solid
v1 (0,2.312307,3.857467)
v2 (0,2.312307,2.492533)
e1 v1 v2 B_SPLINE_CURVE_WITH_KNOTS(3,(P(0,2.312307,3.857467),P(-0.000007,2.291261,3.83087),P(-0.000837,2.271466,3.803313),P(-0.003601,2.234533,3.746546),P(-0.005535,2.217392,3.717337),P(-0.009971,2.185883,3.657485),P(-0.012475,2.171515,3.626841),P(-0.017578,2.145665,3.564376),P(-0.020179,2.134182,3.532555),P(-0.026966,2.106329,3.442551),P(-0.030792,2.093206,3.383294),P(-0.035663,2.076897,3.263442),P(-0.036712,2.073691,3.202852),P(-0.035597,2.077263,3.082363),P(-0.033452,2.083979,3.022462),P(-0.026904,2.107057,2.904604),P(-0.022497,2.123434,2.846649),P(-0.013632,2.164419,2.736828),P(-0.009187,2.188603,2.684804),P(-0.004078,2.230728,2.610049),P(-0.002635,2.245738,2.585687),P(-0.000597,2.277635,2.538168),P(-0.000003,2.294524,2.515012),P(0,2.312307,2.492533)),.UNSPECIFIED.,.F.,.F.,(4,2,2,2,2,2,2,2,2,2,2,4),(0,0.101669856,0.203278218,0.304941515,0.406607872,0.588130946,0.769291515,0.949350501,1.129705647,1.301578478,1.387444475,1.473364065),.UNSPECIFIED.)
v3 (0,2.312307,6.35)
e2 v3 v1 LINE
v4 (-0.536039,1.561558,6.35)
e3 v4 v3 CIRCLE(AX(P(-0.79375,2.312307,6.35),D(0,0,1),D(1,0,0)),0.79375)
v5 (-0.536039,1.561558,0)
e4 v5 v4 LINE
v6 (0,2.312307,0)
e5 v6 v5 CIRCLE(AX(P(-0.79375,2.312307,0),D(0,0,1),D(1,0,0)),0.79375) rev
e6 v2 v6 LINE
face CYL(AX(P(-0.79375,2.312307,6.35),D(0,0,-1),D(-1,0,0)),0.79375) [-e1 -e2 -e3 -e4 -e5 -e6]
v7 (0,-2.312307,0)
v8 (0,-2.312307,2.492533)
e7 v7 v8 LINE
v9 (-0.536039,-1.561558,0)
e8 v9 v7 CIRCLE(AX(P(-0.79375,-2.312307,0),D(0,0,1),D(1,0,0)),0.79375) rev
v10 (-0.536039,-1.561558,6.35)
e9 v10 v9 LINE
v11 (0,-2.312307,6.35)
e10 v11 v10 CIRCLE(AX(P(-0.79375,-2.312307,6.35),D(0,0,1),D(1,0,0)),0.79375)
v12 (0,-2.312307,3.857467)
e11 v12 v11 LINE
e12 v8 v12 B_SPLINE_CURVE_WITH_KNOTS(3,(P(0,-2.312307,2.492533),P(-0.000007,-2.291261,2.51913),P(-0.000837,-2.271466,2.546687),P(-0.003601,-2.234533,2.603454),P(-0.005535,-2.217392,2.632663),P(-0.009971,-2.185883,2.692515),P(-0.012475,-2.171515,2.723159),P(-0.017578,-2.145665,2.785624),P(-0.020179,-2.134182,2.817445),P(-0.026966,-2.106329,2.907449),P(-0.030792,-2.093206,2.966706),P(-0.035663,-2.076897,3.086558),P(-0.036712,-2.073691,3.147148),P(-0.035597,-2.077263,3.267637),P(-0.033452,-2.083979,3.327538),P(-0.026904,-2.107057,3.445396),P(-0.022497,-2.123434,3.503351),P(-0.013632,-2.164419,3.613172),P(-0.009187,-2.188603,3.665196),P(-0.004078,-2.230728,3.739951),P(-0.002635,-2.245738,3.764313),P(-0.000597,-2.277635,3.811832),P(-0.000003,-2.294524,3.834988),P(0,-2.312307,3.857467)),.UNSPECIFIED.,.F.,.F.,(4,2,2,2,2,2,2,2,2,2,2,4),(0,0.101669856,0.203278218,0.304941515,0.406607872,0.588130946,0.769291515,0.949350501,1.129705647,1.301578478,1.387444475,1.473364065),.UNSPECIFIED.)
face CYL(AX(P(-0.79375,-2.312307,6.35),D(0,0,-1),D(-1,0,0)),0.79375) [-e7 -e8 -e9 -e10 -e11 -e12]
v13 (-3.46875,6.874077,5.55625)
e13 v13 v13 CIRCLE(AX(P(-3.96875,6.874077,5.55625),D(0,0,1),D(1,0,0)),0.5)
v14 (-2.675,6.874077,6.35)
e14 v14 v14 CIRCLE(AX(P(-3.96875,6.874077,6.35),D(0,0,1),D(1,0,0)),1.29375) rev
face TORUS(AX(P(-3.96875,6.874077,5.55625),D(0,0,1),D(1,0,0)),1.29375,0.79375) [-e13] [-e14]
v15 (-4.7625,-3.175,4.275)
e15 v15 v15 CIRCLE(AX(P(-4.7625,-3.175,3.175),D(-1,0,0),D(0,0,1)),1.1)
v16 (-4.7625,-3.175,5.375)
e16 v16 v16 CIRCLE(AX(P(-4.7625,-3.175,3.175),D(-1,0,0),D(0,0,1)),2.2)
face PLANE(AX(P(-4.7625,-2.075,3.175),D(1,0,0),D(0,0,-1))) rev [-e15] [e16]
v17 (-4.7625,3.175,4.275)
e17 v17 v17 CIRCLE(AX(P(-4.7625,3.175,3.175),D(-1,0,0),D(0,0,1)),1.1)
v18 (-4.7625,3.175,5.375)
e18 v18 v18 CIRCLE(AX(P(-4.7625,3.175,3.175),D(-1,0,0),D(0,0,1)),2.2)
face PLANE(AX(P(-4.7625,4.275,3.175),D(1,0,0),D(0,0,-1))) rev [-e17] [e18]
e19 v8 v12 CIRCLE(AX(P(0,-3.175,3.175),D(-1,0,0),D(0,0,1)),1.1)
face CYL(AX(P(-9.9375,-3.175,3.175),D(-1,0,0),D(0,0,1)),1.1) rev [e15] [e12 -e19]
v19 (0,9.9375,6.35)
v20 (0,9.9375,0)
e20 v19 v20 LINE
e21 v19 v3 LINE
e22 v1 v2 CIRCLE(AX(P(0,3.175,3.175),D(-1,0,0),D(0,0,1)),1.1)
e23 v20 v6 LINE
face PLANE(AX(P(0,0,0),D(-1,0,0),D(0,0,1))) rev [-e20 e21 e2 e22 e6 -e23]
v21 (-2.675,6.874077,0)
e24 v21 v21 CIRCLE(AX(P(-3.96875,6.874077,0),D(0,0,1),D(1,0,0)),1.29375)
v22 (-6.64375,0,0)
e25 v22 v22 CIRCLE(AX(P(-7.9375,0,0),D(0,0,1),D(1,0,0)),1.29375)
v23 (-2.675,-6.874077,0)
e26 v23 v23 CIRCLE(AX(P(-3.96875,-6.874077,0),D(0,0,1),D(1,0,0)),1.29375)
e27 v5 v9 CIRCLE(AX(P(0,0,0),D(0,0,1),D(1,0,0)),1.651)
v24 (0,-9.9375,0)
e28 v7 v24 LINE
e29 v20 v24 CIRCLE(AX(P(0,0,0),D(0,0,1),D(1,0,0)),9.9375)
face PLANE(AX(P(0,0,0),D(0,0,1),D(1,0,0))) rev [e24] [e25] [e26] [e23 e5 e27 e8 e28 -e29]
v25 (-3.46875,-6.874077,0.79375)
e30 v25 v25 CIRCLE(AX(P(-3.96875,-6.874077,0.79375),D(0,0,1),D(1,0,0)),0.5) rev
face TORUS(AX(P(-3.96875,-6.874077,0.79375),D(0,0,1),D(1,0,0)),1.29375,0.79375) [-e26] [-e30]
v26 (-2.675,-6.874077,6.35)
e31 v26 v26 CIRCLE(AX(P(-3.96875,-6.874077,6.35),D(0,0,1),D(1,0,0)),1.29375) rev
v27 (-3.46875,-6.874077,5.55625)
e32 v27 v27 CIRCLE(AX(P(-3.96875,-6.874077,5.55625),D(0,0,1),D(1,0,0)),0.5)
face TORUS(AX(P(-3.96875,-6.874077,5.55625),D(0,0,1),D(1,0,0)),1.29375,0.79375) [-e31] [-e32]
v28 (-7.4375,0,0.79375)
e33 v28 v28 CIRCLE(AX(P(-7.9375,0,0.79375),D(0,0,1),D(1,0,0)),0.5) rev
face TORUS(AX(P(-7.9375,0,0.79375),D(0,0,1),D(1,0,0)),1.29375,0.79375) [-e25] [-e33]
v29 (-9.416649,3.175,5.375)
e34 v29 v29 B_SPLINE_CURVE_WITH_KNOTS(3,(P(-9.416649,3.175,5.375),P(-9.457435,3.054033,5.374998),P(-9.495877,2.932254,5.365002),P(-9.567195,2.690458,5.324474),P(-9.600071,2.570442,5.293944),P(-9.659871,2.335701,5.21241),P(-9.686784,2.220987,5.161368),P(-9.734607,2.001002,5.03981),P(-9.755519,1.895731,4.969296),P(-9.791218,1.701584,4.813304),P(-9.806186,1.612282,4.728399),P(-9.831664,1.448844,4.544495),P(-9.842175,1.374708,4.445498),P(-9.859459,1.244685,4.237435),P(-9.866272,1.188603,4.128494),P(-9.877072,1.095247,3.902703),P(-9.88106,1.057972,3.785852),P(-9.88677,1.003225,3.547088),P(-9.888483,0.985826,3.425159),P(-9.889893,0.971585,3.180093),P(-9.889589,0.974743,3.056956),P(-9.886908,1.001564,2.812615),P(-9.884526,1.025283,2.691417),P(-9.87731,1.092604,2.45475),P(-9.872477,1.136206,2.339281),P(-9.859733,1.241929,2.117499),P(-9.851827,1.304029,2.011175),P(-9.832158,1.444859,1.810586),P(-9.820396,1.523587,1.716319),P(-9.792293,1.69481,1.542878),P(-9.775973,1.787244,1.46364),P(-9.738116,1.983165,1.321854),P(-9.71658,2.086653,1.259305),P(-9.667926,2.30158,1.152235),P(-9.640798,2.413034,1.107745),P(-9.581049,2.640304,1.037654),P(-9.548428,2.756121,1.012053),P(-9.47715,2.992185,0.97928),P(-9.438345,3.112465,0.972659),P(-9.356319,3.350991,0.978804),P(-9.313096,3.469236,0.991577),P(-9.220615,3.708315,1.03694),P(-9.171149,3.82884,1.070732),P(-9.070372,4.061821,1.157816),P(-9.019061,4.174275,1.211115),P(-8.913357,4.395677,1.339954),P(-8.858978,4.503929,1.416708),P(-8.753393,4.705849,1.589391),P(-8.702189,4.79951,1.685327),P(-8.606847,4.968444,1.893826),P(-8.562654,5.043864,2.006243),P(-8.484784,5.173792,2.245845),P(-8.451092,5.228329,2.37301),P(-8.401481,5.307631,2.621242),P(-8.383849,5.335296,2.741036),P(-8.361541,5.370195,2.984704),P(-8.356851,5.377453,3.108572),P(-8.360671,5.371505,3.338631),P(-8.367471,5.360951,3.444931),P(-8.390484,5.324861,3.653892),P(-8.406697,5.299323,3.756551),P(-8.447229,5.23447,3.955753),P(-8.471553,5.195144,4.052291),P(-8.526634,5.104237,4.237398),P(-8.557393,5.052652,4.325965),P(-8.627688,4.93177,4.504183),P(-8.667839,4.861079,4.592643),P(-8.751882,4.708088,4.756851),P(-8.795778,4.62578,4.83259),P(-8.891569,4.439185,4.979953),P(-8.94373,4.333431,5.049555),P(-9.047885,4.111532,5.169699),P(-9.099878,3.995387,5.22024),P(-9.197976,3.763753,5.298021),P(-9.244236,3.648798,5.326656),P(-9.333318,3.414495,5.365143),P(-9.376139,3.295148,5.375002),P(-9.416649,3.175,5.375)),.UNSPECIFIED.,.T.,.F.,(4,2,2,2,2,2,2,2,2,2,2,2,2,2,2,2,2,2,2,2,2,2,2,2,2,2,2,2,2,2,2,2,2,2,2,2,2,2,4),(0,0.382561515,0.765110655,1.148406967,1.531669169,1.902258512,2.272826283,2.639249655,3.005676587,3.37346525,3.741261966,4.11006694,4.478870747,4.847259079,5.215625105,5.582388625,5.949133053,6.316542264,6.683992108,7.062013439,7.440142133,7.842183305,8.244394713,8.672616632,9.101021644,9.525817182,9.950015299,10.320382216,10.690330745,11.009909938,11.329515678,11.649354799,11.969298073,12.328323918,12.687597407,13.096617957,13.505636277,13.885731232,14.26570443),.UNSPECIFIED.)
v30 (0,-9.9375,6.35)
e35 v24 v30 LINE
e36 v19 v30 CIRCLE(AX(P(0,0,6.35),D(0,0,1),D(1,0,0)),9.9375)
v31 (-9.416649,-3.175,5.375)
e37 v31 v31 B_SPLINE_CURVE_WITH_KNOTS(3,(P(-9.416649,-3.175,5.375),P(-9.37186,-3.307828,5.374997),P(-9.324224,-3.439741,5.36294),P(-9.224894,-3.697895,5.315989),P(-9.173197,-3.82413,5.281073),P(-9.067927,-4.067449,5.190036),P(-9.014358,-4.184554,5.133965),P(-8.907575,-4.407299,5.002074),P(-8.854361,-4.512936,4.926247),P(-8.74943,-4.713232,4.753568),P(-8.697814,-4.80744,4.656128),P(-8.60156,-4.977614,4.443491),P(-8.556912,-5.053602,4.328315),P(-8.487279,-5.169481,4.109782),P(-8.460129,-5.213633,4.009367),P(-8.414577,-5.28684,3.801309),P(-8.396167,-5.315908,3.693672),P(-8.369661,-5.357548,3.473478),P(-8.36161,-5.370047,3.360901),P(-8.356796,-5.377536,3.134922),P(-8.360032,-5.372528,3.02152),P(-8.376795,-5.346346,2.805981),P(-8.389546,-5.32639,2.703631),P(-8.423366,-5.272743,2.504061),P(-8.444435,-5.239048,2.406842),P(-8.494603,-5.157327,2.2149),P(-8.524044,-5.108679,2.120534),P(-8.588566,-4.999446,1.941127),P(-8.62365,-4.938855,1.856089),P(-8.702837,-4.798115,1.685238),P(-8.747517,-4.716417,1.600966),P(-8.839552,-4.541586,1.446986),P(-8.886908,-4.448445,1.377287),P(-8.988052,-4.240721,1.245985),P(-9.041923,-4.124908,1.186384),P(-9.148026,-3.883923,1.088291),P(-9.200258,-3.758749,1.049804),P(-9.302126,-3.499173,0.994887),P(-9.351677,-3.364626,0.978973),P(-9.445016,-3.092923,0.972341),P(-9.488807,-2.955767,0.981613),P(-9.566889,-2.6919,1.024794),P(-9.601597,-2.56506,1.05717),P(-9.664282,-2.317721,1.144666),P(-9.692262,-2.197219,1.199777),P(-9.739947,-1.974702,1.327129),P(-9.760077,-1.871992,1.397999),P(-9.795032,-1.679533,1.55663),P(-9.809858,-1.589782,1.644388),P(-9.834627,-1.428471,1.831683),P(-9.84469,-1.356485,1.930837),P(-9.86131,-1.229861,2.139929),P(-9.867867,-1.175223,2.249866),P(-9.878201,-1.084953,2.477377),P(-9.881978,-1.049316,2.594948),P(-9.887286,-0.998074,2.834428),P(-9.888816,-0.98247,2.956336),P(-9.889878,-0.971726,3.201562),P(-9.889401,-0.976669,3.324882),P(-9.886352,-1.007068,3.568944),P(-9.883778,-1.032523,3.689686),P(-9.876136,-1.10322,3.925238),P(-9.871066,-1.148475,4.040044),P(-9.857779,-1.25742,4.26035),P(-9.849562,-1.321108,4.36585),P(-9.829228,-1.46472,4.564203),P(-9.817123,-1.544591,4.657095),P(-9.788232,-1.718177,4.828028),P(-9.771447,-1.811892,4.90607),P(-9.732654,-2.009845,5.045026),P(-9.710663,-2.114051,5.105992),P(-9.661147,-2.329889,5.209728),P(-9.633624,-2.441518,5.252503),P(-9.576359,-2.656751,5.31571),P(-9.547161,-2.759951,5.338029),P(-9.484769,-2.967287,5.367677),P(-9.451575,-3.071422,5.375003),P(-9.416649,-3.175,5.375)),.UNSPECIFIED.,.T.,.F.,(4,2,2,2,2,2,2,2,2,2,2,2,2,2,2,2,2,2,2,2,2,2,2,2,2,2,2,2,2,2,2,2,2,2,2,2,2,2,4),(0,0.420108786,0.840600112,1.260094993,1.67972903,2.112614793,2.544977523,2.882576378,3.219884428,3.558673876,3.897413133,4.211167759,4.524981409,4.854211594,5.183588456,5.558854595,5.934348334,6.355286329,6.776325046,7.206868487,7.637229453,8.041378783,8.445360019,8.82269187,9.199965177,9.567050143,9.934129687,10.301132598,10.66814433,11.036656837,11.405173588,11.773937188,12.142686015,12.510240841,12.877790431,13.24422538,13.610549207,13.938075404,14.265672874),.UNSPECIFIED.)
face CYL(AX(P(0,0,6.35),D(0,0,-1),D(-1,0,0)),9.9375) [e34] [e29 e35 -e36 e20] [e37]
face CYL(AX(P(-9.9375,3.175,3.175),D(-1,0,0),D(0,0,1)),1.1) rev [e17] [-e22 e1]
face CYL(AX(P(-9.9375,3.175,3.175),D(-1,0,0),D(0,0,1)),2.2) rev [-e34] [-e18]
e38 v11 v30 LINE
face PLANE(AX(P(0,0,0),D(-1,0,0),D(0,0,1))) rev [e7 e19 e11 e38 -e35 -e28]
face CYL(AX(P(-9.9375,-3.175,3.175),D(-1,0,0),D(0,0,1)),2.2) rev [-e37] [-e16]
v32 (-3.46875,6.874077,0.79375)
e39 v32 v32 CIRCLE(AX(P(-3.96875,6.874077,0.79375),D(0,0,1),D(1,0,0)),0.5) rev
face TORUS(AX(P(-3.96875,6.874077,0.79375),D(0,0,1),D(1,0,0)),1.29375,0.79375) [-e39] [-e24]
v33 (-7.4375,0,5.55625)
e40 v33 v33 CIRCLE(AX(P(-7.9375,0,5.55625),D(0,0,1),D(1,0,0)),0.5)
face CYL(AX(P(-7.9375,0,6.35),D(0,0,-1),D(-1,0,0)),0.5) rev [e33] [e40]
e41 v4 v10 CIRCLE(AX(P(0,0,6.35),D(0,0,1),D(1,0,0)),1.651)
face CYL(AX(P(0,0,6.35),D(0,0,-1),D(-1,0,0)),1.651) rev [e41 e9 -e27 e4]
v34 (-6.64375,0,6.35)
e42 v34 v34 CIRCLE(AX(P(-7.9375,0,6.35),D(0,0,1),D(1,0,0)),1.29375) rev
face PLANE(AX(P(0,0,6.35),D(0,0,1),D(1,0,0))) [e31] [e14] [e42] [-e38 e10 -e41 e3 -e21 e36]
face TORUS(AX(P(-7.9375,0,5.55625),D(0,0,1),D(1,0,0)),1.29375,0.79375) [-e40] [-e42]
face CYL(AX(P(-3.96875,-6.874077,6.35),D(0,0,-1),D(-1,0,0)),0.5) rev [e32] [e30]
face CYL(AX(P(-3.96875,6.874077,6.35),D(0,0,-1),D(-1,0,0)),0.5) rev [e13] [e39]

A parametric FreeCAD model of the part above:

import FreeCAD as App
import Part
import Sketcher

V = App.Vector
Q = App.Units.Quantity


def edges_at(feature, points):
    """Names of the edges that pass closest to the given points."""
    edges = feature.Shape.Edges
    near = lambda p: min(range(len(edges)), key=lambda i: edges[i].distToShape(Part.Vertex(*p))[0])
    return sorted({f"Edge{near(p) + 1}" for p in points})


def add_polygon(sketch, points):
    """Adds a closed chain of lines whose ends are joined by coincident constraints."""
    first, n = sketch.GeometryCount, len(points)
    for a, b in zip(points, points[1:] + points[:1]):
        sketch.addGeometry(Part.LineSegment(App.Vector(*a, 0), App.Vector(*b, 0)), False)
    for i in range(n):
        sketch.addConstraint(Sketcher.Constraint("Coincident", first + i, 2, first + (i + 1) % n, 1))

doc = App.newDocument("Part")
params = doc.addObject("Spreadsheet::Sheet", "Params")
for row, (alias, value) in enumerate([
    ("sketch1_diameter", "0.13 in"),
    ("pad1_length", "0.25 in"),
    ("sketch2_width", "2 in"),
    ("fillet_radius", "0.03125 in"),
    ("fillet2_radius", "0.03125 in"),
    ("hole_diameter", "2.2 mm"),
    ("hole_cbore_diameter", "4.4 mm"),
    ("hole_cbore_depth", "5.175 mm"),
], start=1):
    params.set(f"A{row}", alias)
    params.set(f"B{row}", "=" + value)
    params.setAlias(f"B{row}", alias)

body = doc.addObject("PartDesign::Body", "Body")

# Sketch on XY plane
sketch1 = body.newObject("Sketcher::SketchObject", "Sketch")
sketch1.AttachmentSupport = (doc.getObject("XY_Plane"), [""])
sketch1.MapMode = "FlatFace"
sketch1.addGeometry(Part.Circle(V(0, 0, 0), V(0, 0, 1), 9.9), False)
sketch1.addGeometry(Part.Circle(V(-4, -6.9, 0), V(0, 0, 1), 0.5), False)
sketch1.addGeometry(Part.Circle(V(4, -6.9, 0), V(0, 0, 1), 0.5), False)
sketch1.addGeometry(Part.Circle(V(-7.9, 0, 0), V(0, 0, 1), 0.5), False)
sketch1.addGeometry(Part.Circle(V(-4, 6.9, 0), V(0, 0, 1), 0.5), False)
sketch1.addGeometry(Part.Circle(V(0, 0, 0), V(0, 0, 1), 1.7), False)
sketch1.addGeometry(Part.Circle(V(7.9, 0, 0), V(0, 0, 1), 0.5), False)
sketch1.addGeometry(Part.Circle(V(4, 6.9, 0), V(0, 0, 1), 0.5), False)
sketch1.addConstraint(Sketcher.Constraint("Coincident", 0, 3, -1, 1))
sketch1.addConstraint(Sketcher.Constraint("Coincident", 5, 3, -1, 1))
sketch1.addConstraint(Sketcher.Constraint("Equal", 1, 2))
sketch1.addConstraint(Sketcher.Constraint("Equal", 2, 3))
sketch1.addConstraint(Sketcher.Constraint("Equal", 3, 4))
sketch1.addConstraint(Sketcher.Constraint("Equal", 4, 6))
sketch1.addConstraint(Sketcher.Constraint("Equal", 6, 7))
sketch1.addConstraint(Sketcher.Constraint("Symmetric", 2, 3, 4, 3, -1, 1))
sketch1.addConstraint(Sketcher.Constraint("Symmetric", 3, 3, 6, 3, -1, 1))
sketch1.addConstraint(Sketcher.Constraint("Symmetric", 1, 3, 7, 3, -1, 1))
sketch1.addConstraint(Sketcher.Constraint("Symmetric", 1, 3, 2, 3, -2))
sketch1.addConstraint(Sketcher.Constraint("PointOnObject", 3, 3, -1))
sketch1.addConstraint(Sketcher.Constraint("Diameter", 5, Q("0.13 in")))
sketch1.addConstraint(Sketcher.Constraint("Diameter", 0, 19.875))
sketch1.addConstraint(Sketcher.Constraint("Diameter", 1, 1.0))
sketch1.addConstraint(Sketcher.Constraint("DistanceX", 1, 3, -1, 1, Q("0.15625 in")))
sketch1.addConstraint(Sketcher.Constraint("DistanceX", 3, 3, -1, 1, Q("0.3125 in")))
sketch1.addConstraint(Sketcher.Constraint("DistanceY", 1, 3, -1, 1, 6.874077))
sketch1.setExpression("Constraints[12]", "Params.sketch1_diameter")
pad1 = body.newObject("PartDesign::Pad", "Pad")
pad1.Profile = sketch1
pad1.setExpression("Length", "Params.pad1_length")

# Sketch on XY plane
sketch2 = body.newObject("Sketcher::SketchObject", "Sketch001")
sketch2.AttachmentSupport = (doc.getObject("XY_Plane"), [""])
sketch2.MapMode = "FlatFace"
sketch2.AttachmentOffset = App.Placement(V(0, 0, 0.25 * 25.4), App.Rotation())
add_polygon(sketch2, [(0, 25), (0, -25), (51, -25), (51, 25)])  # lines 0-3
sketch2.addConstraint(Sketcher.Constraint("Vertical", 0))
sketch2.addConstraint(Sketcher.Constraint("Horizontal", 1))
sketch2.addConstraint(Sketcher.Constraint("Vertical", 2))
sketch2.addConstraint(Sketcher.Constraint("Horizontal", 3))
sketch2.addConstraint(Sketcher.Constraint("Symmetric", 0, 2, 3, 2, -1, 1))
sketch2.addConstraint(Sketcher.Constraint("Equal", 3, 0))
sketch2.addConstraint(Sketcher.Constraint("DistanceX", 1, 1, 1, 2, Q("2 in")))
sketch2.setExpression("Constraints[10]", "Params.sketch2_width")
pocket1 = body.newObject("PartDesign::Pocket", "Pocket")
pocket1.Profile = sketch2
pocket1.Type = "ThroughAll"
doc.recompute()

fillet = body.newObject("PartDesign::Fillet", "Fillet")
fillet.Base = (pocket1, edges_at(pocket1, [(0, -1.651, 3.175), (0, 1.651, 3.175)]))
fillet.setExpression("Radius", "Params.fillet_radius")
doc.recompute()

fillet2 = body.newObject("PartDesign::Fillet", "Fillet001")
fillet2.Base = (fillet, edges_at(fillet, [
    (-4.469, 6.874, 0),
    (-4.469, 6.874, 6.35),
    (-4.469, -6.874, 0),
    (-4.469, -6.874, 6.35),
    (-8.438, 0, 0),
    (-8.438, 0, 6.35),
]))
fillet2.setExpression("Radius", "Params.fillet2_radius")

# Sketch on YZ plane
sketch3 = body.newObject("Sketcher::SketchObject", "Sketch002")
sketch3.AttachmentSupport = (doc.getObject("YZ_Plane"), [""])
sketch3.MapMode = "FlatFace"
sketch3.AttachmentOffset = App.Placement(V(0, 0, -9.9375), App.Rotation())
sketch3.addGeometry(Part.Circle(V(3.2, 3.2, 0), V(0, 0, 1), 1.1), False)
sketch3.addGeometry(Part.Circle(V(-3.2, 3.2, 0), V(0, 0, 1), 1.1), False)
sketch3.addConstraint(Sketcher.Constraint("Equal", 0, 1))
sketch3.addConstraint(Sketcher.Constraint("Symmetric", 0, 3, 1, 3, -2))
sketch3.addConstraint(Sketcher.Constraint("Diameter", 0, 2.2))
sketch3.addConstraint(Sketcher.Constraint("DistanceX", 1, 3, 0, 3, Q("0.25 in")))
sketch3.addConstraint(Sketcher.Constraint("DistanceY", -1, 1, 0, 3, Q("0.125 in")))
doc.recompute()
hole = body.newObject("PartDesign::Hole", "Hole")
hole.Profile = sketch3
hole.ThreadType = "None"
hole.setExpression("Diameter", "Params.hole_diameter")
hole.DepthType = "ThroughAll"
hole.HoleCutType = "Counterbore"
hole.setExpression("HoleCutDiameter", "Params.hole_cbore_diameter")
hole.setExpression("HoleCutDepth", "Params.hole_cbore_depth")
hole.Reversed = True

doc.recompute()
